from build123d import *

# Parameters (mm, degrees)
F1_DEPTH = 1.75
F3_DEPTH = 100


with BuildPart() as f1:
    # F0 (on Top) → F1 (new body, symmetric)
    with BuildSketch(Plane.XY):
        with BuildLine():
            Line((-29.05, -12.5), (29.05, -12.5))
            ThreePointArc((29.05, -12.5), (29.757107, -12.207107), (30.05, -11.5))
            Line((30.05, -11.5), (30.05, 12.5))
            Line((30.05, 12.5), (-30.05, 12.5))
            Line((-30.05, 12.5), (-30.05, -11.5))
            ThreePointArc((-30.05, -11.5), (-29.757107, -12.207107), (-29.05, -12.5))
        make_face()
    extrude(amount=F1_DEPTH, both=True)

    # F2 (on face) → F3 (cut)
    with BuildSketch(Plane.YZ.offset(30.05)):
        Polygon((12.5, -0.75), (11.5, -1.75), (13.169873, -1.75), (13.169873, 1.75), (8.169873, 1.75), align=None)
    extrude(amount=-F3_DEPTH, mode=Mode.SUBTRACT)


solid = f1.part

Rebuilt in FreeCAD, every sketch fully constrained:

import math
import FreeCAD as App
import Part
import Sketcher

V = App.Vector
Q = App.Units.Quantity

doc = App.newDocument("Part")
body = doc.addObject("PartDesign::Body", "Body")

# Sketch on XY plane
sketch1 = body.newObject("Sketcher::SketchObject", "Sketch")
sketch1.AttachmentSupport = (doc.getObject("XY_Plane"), [""])
sketch1.MapMode = "FlatFace"
sketch1.addGeometry(Part.LineSegment(V(-29.1, -12.5, 0), V(29.1, -12.5, 0)), False)
sketch1.addGeometry(Part.ArcOfCircle(Part.Circle(V(29.1, -11.5, 0), V(0, 0, 1), 1), math.radians(-90), math.radians(0)), False)
sketch1.addGeometry(Part.LineSegment(V(30.1, -11.5, 0), V(30.1, 12.5, 0)), False)
sketch1.addGeometry(Part.LineSegment(V(30.1, 12.5, 0), V(-30.1, 12.5, 0)), False)
sketch1.addGeometry(Part.LineSegment(V(-30.1, 12.5, 0), V(-30.1, -11.5, 0)), False)
sketch1.addGeometry(Part.ArcOfCircle(Part.Circle(V(-29.1, -11.5, 0), V(0, 0, 1), 1), math.radians(180), math.radians(270)), False)
sketch1.addConstraint(Sketcher.Constraint("Tangent", 0, 2, 1, 1))
sketch1.addConstraint(Sketcher.Constraint("Tangent", 1, 2, 2, 1))
sketch1.addConstraint(Sketcher.Constraint("Coincident", 2, 2, 3, 1))
sketch1.addConstraint(Sketcher.Constraint("Coincident", 3, 2, 4, 1))
sketch1.addConstraint(Sketcher.Constraint("Tangent", 4, 2, 5, 1))
sketch1.addConstraint(Sketcher.Constraint("Tangent", 5, 2, 0, 1))
sketch1.addConstraint(Sketcher.Constraint("Horizontal", 0))
sketch1.addConstraint(Sketcher.Constraint("Vertical", 2))
sketch1.addConstraint(Sketcher.Constraint("Horizontal", 3))
sketch1.addConstraint(Sketcher.Constraint("Vertical", 4))
sketch1.addConstraint(Sketcher.Constraint("Equal", 1, 5))
sketch1.addConstraint(Sketcher.Constraint("Radius", 1, Q("0.999999 mm")))
sketch1.addConstraint(Sketcher.Constraint("DistanceY", 2, 1, 2, 2, Q("24 mm")))
sketch1.addConstraint(Sketcher.Constraint("DistanceX", 0, 1, 0, 2, Q("58.1 mm")))
sketch1.addConstraint(Sketcher.Constraint("DistanceY", 1, 3, -1, 1, Q("11.500001 mm")))
sketch1.addConstraint(Sketcher.Constraint("DistanceX", -1, 1, 1, 3, Q("29.050001 mm")))
pad1 = body.newObject("PartDesign::Pad", "Pad")
pad1.Profile = sketch1
pad1.Length = 3.5
pad1.Midplane = True

# Sketch on YZ plane
sketch2 = body.newObject("Sketcher::SketchObject", "Sketch001")
sketch2.AttachmentSupport = (doc.getObject("YZ_Plane"), [""])
sketch2.MapMode = "FlatFace"
sketch2.AttachmentOffset = App.Placement(V(0, 0, 30.05), App.Rotation())
sketch2.addGeometry(Part.LineSegment(V(12.5, -0.8, 0), V(11.5, -1.8, 0)), False)
sketch2.addGeometry(Part.LineSegment(V(11.5, -1.8, 0), V(13.2, -1.8, 0)), False)
sketch2.addGeometry(Part.LineSegment(V(13.2, -1.8, 0), V(13.2, 1.8, 0)), False)
sketch2.addGeometry(Part.LineSegment(V(13.2, 1.8, 0), V(8.2, 1.8, 0)), False)
sketch2.addGeometry(Part.LineSegment(V(8.2, 1.8, 0), V(12.5, -0.8, 0)), False)
sketch2.addConstraint(Sketcher.Constraint("Coincident", 0, 2, 1, 1))
sketch2.addConstraint(Sketcher.Constraint("Coincident", 1, 2, 2, 1))
sketch2.addConstraint(Sketcher.Constraint("Coincident", 2, 2, 3, 1))
sketch2.addConstraint(Sketcher.Constraint("Coincident", 3, 2, 4, 1))
sketch2.addConstraint(Sketcher.Constraint("Coincident", 4, 2, 0, 1))
sketch2.addConstraint(Sketcher.Constraint("Horizontal", 1))
sketch2.addConstraint(Sketcher.Constraint("Vertical", 2))
sketch2.addConstraint(Sketcher.Constraint("Horizontal", 3))
sketch2.addConstraint(Sketcher.Constraint("DistanceX", 3, 2, 3, 1, Q("5 mm")))
sketch2.addConstraint(Sketcher.Constraint("Angle", 0, Q("-135 deg")))
sketch2.addConstraint(Sketcher.Constraint("Angle", 4, Q("-30 deg")))
sketch2.addConstraint(Sketcher.Constraint("Distance", 4, Q("5 mm")))
sketch2.addConstraint(Sketcher.Constraint("DistanceY", 2, 1, 2, 2, Q("3.5 mm")))
sketch2.addConstraint(Sketcher.Constraint("DistanceX", -1, 1, 0, 2, Q("11.5 mm")))
sketch2.addConstraint(Sketcher.Constraint("DistanceY", 0, 2, -1, 1, Q("1.75 mm")))
pocket1 = body.newObject("PartDesign::Pocket", "Pocket")
pocket1.Profile = sketch2
pocket1.Length = 100

doc.recompute()
